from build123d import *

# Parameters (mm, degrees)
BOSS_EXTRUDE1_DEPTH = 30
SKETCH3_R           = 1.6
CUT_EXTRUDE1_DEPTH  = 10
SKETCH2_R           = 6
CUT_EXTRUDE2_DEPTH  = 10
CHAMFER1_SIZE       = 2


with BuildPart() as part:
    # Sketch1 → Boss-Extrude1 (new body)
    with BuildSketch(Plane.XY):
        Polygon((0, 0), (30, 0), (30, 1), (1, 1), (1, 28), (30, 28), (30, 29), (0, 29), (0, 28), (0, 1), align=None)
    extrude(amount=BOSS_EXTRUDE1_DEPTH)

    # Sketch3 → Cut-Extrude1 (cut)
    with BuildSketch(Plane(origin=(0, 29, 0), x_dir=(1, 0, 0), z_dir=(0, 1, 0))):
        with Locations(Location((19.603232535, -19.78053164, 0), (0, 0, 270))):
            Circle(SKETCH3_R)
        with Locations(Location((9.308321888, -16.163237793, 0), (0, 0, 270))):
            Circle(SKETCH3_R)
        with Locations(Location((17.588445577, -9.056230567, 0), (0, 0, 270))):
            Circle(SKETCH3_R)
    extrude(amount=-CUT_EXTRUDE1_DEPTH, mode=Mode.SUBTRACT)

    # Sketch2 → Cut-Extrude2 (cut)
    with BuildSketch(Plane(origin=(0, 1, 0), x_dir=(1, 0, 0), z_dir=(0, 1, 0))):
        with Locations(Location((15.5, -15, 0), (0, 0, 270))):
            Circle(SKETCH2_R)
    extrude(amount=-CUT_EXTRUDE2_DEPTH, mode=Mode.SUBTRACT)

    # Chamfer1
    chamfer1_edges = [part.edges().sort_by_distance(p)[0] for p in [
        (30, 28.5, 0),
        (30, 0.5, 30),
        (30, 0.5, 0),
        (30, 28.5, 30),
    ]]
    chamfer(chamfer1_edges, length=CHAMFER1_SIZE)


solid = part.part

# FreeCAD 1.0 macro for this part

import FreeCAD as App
import Part
import Sketcher
Q = App.Units.Quantity


def edges_at(feature, points):
    """Names of the edges that pass closest to the given points."""
    edges = feature.Shape.Edges
    near = lambda p: min(range(len(edges)), key=lambda i: edges[i].distToShape(Part.Vertex(*p))[0])
    return sorted({f"Edge{near(p) + 1}" for p in points})

doc = App.newDocument("Part")
body = doc.addObject("PartDesign::Body", "Body")

# Sketch on XY plane
sketch1 = doc.addObject("Sketcher::SketchObject", "Sketch")
body.addObject(sketch1)
sketch1.AttachmentSupport = (doc.XY_Plane, [""])
sketch1.MapMode = "FlatFace"
sketch1.addGeometry(Part.LineSegment(App.Vector(0, 0, 0), App.Vector(30, 0, 0)), False)
sketch1.addGeometry(Part.LineSegment(App.Vector(30, 0, 0), App.Vector(30, 1, 0)), False)
sketch1.addGeometry(Part.LineSegment(App.Vector(30, 1, 0), App.Vector(1, 1, 0)), False)
sketch1.addGeometry(Part.LineSegment(App.Vector(1, 1, 0), App.Vector(1, 28, 0)), False)
sketch1.addGeometry(Part.LineSegment(App.Vector(1, 28, 0), App.Vector(30, 28, 0)), False)
sketch1.addGeometry(Part.LineSegment(App.Vector(30, 28, 0), App.Vector(30, 29, 0)), False)
sketch1.addGeometry(Part.LineSegment(App.Vector(30, 29, 0), App.Vector(0, 29, 0)), False)
sketch1.addGeometry(Part.LineSegment(App.Vector(0, 29, 0), App.Vector(0, 0, 0)), False)
sketch1.addConstraint(Sketcher.Constraint("Coincident", 0, 2, 1, 1))
sketch1.addConstraint(Sketcher.Constraint("Coincident", 1, 2, 2, 1))
sketch1.addConstraint(Sketcher.Constraint("Coincident", 2, 2, 3, 1))
sketch1.addConstraint(Sketcher.Constraint("Coincident", 3, 2, 4, 1))
sketch1.addConstraint(Sketcher.Constraint("Coincident", 4, 2, 5, 1))
sketch1.addConstraint(Sketcher.Constraint("Coincident", 5, 2, 6, 1))
sketch1.addConstraint(Sketcher.Constraint("Coincident", 6, 2, 7, 1))
sketch1.addConstraint(Sketcher.Constraint("Coincident", 7, 2, 0, 1))
sketch1.addConstraint(Sketcher.Constraint("Horizontal", 0))
sketch1.addConstraint(Sketcher.Constraint("Vertical", 1))
sketch1.addConstraint(Sketcher.Constraint("Horizontal", 2))
sketch1.addConstraint(Sketcher.Constraint("Vertical", 3))
sketch1.addConstraint(Sketcher.Constraint("Horizontal", 4))
sketch1.addConstraint(Sketcher.Constraint("Vertical", 5))
sketch1.addConstraint(Sketcher.Constraint("Horizontal", 6))
sketch1.addConstraint(Sketcher.Constraint("Vertical", 7))
sketch1.addConstraint(Sketcher.Constraint("Coincident", 7, 2, -1, 1))
sketch1.addConstraint(Sketcher.Constraint("Vertical", 1, 2, 4, 2))
sketch1.addConstraint(Sketcher.Constraint("Equal", 1, 5))
sketch1.addConstraint(Sketcher.Constraint("Equal", 4, 7))
sketch1.addConstraint(Sketcher.Constraint("DistanceX", 0, 1, 0, 2, Q("30 mm")))
sketch1.addConstraint(Sketcher.Constraint("DistanceX", 2, 2, 2, 1, Q("29 mm")))
sketch1.addConstraint(Sketcher.Constraint("DistanceY", 1, 1, 1, 2, Q("1 mm")))
pad1 = doc.addObject("PartDesign::Pad", "Pad")
body.addObject(pad1)
pad1.Profile = sketch1
pad1.Length = 30

# Sketch on XZ plane
sketch2 = doc.addObject("Sketcher::SketchObject", "Sketch001")
body.addObject(sketch2)
sketch2.AttachmentSupport = (doc.XZ_Plane, [""])
sketch2.MapMode = "FlatFace"
sketch2.AttachmentOffset = App.Placement(App.Vector(0, 0, -29), App.Rotation())
sketch2.addGeometry(Part.Circle(App.Vector(19.6, 19.8, 0), App.Vector(0, 0, 1), 1.6), False)
sketch2.addGeometry(Part.Circle(App.Vector(9.3, 16.2, 0), App.Vector(0, 0, 1), 1.6), False)
sketch2.addGeometry(Part.Circle(App.Vector(17.6, 9.1, 0), App.Vector(0, 0, 1), 1.6), False)
sketch2.addConstraint(Sketcher.Constraint("Equal", 0, 1))
sketch2.addConstraint(Sketcher.Constraint("Equal", 1, 2))
sketch2.addConstraint(Sketcher.Constraint("Diameter", 0, Q("3.2 mm")))
sketch2.addConstraint(Sketcher.Constraint("DistanceY", 2, 3, 0, 3, Q("10.724301 mm")))
sketch2.addConstraint(Sketcher.Constraint("DistanceY", -1, 1, 0, 3, Q("19.780532 mm")))
sketch2.addConstraint(Sketcher.Constraint("DistanceX", -1, 1, 1, 3, Q("9.308322 mm")))
sketch2.addConstraint(Sketcher.Constraint("DistanceX", 1, 3, 0, 3, Q("10.294911 mm")))
sketch2.addConstraint(Sketcher.Constraint("DistanceY", -1, 1, 1, 3, Q("16.163238 mm")))
sketch2.addConstraint(Sketcher.Constraint("DistanceX", -1, 1, 2, 3, Q("17.588446 mm")))
pocket1 = doc.addObject("PartDesign::Pocket", "Pocket")
body.addObject(pocket1)
pocket1.Profile = sketch2
pocket1.Length = 10
pocket1.Reversed = True

# Sketch on XZ plane
sketch3 = doc.addObject("Sketcher::SketchObject", "Sketch002")
body.addObject(sketch3)
sketch3.AttachmentSupport = (doc.XZ_Plane, [""])
sketch3.MapMode = "FlatFace"
sketch3.AttachmentOffset = App.Placement(App.Vector(0, 0, -1), App.Rotation())
sketch3.addGeometry(Part.Circle(App.Vector(16, 15, 0), App.Vector(0, 0, 1), 6), False)
sketch3.addConstraint(Sketcher.Constraint("Diameter", 0, Q("12 mm")))
sketch3.addConstraint(Sketcher.Constraint("DistanceY", -1, 1, 0, 3, Q("15 mm")))
sketch3.addConstraint(Sketcher.Constraint("DistanceX", -1, 1, 0, 3, Q("15.5 mm")))
pocket2 = doc.addObject("PartDesign::Pocket", "Pocket001")
body.addObject(pocket2)
pocket2.Profile = sketch3
pocket2.Length = 10
pocket2.Reversed = True
doc.recompute()

chamfer = doc.addObject("PartDesign::Chamfer", "Chamfer")
body.addObject(chamfer)
chamfer.Base = (pocket2, edges_at(pocket2, [
    (30, 28.5, 0),
    (30, 0.5, 30),
    (30, 0.5, 0),
    (30, 28.5, 30),
]))
chamfer.Size = 2

doc.recompute()
